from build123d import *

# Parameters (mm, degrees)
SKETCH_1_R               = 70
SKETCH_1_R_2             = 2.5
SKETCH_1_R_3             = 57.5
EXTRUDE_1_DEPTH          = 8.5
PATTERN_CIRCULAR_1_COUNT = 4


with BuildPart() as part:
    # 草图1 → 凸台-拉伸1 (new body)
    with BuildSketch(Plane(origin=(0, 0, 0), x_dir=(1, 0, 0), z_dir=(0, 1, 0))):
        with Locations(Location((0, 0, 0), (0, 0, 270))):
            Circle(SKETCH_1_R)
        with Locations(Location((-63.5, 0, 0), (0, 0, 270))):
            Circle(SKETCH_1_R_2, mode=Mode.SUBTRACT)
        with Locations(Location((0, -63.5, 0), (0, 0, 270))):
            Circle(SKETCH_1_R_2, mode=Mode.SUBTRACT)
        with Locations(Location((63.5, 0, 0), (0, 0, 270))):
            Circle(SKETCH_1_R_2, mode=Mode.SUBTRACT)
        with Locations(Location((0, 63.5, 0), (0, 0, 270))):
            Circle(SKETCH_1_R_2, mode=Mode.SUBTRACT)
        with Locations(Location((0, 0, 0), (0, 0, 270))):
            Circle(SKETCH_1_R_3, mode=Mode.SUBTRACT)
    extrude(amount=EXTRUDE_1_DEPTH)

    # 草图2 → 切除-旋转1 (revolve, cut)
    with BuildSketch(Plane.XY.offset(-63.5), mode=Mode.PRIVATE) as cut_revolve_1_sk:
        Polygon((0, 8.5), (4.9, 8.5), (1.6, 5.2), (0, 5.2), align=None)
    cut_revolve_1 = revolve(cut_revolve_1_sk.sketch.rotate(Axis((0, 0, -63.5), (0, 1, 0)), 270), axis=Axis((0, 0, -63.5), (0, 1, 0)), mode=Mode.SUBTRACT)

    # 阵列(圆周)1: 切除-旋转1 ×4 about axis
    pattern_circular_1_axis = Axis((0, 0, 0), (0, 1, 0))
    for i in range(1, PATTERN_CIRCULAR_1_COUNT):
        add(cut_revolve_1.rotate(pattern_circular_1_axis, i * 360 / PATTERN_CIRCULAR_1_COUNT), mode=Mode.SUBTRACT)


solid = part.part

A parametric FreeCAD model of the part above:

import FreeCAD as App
import Part
import Sketcher

V = App.Vector
Q = App.Units.Quantity

doc = App.newDocument("Part")
body = doc.addObject("PartDesign::Body", "Body")

# Sketch on XZ plane
sketch1 = body.newObject("Sketcher::SketchObject", "Sketch")
sketch1.AttachmentSupport = (doc.getObject("XZ_Plane"), [""])
sketch1.MapMode = "FlatFace"
sketch1.addGeometry(Part.Circle(V(0, 0, 0), V(0, 0, 1), 70), False)
sketch1.addGeometry(Part.Circle(V(0, -63.5, 0), V(0, 0, 1), 2.5), False)
sketch1.addGeometry(Part.Circle(V(-63.5, 0, 0), V(0, 0, 1), 2.5), False)
sketch1.addGeometry(Part.Circle(V(63.5, 0, 0), V(0, 0, 1), 2.5), False)
sketch1.addGeometry(Part.Circle(V(0, 0, 0), V(0, 0, 1), 57.5), False)
sketch1.addGeometry(Part.Circle(V(0, 63.5, 0), V(0, 0, 1), 2.5), False)
sketch1.addConstraint(Sketcher.Constraint("Coincident", 0, 3, -1, 1))
sketch1.addConstraint(Sketcher.Constraint("Coincident", 4, 3, -1, 1))
sketch1.addConstraint(Sketcher.Constraint("Equal", 1, 2))
sketch1.addConstraint(Sketcher.Constraint("Equal", 2, 3))
sketch1.addConstraint(Sketcher.Constraint("Equal", 3, 5))
sketch1.addConstraint(Sketcher.Constraint("Symmetric", 2, 3, 3, 3, -1, 1))
sketch1.addConstraint(Sketcher.Constraint("Symmetric", 1, 3, 5, 3, -1, 1))
sketch1.addConstraint(Sketcher.Constraint("PointOnObject", 1, 3, -2))
sketch1.addConstraint(Sketcher.Constraint("PointOnObject", 2, 3, -1))
sketch1.addConstraint(Sketcher.Constraint("Diameter", 0, Q("140 mm")))
sketch1.addConstraint(Sketcher.Constraint("Diameter", 1, Q("5 mm")))
sketch1.addConstraint(Sketcher.Constraint("Diameter", 4, Q("115 mm")))
sketch1.addConstraint(Sketcher.Constraint("DistanceX", 2, 3, 3, 3, Q("127 mm")))
sketch1.addConstraint(Sketcher.Constraint("DistanceY", 1, 3, 5, 3, Q("127 mm")))
pad1 = body.newObject("PartDesign::Pad", "Pad")
pad1.Profile = sketch1
pad1.Length = 8.5
pad1.Reversed = True

# Sketch on XY plane
sketch2 = body.newObject("Sketcher::SketchObject", "Sketch001")
sketch2.AttachmentSupport = (doc.getObject("XY_Plane"), [""])
sketch2.MapMode = "FlatFace"
sketch2.AttachmentOffset = App.Placement(V(0, 0, -63.5), App.Rotation())
sketch2.addGeometry(Part.LineSegment(V(4.9, 8.5, 0), V(0, 8.5, 0)), False)
sketch2.addGeometry(Part.LineSegment(V(0, 8.5, 0), V(0, 5.2, 0)), False)
sketch2.addGeometry(Part.LineSegment(V(0, 5.2, 0), V(1.6, 5.2, 0)), False)
sketch2.addGeometry(Part.LineSegment(V(1.6, 5.2, 0), V(4.9, 8.5, 0)), False)
sketch2.addConstraint(Sketcher.Constraint("Coincident", 0, 2, 1, 1))
sketch2.addConstraint(Sketcher.Constraint("Coincident", 1, 2, 2, 1))
sketch2.addConstraint(Sketcher.Constraint("Coincident", 2, 2, 3, 1))
sketch2.addConstraint(Sketcher.Constraint("Coincident", 3, 2, 0, 1))
sketch2.addConstraint(Sketcher.Constraint("Horizontal", 0))
sketch2.addConstraint(Sketcher.Constraint("Vertical", 1))
sketch2.addConstraint(Sketcher.Constraint("Horizontal", 2))
sketch2.addConstraint(Sketcher.Constraint("PointOnObject", 0, 2, -2))
sketch2.addConstraint(Sketcher.Constraint("Angle", 3, Q("45 deg")))
sketch2.addConstraint(Sketcher.Constraint("DistanceX", 0, 2, 0, 1, Q("4.9 mm")))
sketch2.addConstraint(Sketcher.Constraint("DistanceX", 2, 1, 2, 2, Q("1.6 mm")))
sketch2.addConstraint(Sketcher.Constraint("DistanceY", -1, 1, 0, 2, Q("8.5 mm")))
groove = body.newObject("PartDesign::Groove", "Groove")
groove.Profile = sketch2
groove.ReferenceAxis = (sketch2, ["V_Axis"])
groove.Angle = 360
doc.recompute()

polarpattern = body.newObject("PartDesign::PolarPattern", "PolarPattern")
polarpattern.Originals = [groove]
polarpattern.Axis = (doc.getObject("Y_Axis"), [""])
polarpattern.Angle = 360
polarpattern.Occurrences = 4
body.Tip = polarpattern

doc.recompute()
